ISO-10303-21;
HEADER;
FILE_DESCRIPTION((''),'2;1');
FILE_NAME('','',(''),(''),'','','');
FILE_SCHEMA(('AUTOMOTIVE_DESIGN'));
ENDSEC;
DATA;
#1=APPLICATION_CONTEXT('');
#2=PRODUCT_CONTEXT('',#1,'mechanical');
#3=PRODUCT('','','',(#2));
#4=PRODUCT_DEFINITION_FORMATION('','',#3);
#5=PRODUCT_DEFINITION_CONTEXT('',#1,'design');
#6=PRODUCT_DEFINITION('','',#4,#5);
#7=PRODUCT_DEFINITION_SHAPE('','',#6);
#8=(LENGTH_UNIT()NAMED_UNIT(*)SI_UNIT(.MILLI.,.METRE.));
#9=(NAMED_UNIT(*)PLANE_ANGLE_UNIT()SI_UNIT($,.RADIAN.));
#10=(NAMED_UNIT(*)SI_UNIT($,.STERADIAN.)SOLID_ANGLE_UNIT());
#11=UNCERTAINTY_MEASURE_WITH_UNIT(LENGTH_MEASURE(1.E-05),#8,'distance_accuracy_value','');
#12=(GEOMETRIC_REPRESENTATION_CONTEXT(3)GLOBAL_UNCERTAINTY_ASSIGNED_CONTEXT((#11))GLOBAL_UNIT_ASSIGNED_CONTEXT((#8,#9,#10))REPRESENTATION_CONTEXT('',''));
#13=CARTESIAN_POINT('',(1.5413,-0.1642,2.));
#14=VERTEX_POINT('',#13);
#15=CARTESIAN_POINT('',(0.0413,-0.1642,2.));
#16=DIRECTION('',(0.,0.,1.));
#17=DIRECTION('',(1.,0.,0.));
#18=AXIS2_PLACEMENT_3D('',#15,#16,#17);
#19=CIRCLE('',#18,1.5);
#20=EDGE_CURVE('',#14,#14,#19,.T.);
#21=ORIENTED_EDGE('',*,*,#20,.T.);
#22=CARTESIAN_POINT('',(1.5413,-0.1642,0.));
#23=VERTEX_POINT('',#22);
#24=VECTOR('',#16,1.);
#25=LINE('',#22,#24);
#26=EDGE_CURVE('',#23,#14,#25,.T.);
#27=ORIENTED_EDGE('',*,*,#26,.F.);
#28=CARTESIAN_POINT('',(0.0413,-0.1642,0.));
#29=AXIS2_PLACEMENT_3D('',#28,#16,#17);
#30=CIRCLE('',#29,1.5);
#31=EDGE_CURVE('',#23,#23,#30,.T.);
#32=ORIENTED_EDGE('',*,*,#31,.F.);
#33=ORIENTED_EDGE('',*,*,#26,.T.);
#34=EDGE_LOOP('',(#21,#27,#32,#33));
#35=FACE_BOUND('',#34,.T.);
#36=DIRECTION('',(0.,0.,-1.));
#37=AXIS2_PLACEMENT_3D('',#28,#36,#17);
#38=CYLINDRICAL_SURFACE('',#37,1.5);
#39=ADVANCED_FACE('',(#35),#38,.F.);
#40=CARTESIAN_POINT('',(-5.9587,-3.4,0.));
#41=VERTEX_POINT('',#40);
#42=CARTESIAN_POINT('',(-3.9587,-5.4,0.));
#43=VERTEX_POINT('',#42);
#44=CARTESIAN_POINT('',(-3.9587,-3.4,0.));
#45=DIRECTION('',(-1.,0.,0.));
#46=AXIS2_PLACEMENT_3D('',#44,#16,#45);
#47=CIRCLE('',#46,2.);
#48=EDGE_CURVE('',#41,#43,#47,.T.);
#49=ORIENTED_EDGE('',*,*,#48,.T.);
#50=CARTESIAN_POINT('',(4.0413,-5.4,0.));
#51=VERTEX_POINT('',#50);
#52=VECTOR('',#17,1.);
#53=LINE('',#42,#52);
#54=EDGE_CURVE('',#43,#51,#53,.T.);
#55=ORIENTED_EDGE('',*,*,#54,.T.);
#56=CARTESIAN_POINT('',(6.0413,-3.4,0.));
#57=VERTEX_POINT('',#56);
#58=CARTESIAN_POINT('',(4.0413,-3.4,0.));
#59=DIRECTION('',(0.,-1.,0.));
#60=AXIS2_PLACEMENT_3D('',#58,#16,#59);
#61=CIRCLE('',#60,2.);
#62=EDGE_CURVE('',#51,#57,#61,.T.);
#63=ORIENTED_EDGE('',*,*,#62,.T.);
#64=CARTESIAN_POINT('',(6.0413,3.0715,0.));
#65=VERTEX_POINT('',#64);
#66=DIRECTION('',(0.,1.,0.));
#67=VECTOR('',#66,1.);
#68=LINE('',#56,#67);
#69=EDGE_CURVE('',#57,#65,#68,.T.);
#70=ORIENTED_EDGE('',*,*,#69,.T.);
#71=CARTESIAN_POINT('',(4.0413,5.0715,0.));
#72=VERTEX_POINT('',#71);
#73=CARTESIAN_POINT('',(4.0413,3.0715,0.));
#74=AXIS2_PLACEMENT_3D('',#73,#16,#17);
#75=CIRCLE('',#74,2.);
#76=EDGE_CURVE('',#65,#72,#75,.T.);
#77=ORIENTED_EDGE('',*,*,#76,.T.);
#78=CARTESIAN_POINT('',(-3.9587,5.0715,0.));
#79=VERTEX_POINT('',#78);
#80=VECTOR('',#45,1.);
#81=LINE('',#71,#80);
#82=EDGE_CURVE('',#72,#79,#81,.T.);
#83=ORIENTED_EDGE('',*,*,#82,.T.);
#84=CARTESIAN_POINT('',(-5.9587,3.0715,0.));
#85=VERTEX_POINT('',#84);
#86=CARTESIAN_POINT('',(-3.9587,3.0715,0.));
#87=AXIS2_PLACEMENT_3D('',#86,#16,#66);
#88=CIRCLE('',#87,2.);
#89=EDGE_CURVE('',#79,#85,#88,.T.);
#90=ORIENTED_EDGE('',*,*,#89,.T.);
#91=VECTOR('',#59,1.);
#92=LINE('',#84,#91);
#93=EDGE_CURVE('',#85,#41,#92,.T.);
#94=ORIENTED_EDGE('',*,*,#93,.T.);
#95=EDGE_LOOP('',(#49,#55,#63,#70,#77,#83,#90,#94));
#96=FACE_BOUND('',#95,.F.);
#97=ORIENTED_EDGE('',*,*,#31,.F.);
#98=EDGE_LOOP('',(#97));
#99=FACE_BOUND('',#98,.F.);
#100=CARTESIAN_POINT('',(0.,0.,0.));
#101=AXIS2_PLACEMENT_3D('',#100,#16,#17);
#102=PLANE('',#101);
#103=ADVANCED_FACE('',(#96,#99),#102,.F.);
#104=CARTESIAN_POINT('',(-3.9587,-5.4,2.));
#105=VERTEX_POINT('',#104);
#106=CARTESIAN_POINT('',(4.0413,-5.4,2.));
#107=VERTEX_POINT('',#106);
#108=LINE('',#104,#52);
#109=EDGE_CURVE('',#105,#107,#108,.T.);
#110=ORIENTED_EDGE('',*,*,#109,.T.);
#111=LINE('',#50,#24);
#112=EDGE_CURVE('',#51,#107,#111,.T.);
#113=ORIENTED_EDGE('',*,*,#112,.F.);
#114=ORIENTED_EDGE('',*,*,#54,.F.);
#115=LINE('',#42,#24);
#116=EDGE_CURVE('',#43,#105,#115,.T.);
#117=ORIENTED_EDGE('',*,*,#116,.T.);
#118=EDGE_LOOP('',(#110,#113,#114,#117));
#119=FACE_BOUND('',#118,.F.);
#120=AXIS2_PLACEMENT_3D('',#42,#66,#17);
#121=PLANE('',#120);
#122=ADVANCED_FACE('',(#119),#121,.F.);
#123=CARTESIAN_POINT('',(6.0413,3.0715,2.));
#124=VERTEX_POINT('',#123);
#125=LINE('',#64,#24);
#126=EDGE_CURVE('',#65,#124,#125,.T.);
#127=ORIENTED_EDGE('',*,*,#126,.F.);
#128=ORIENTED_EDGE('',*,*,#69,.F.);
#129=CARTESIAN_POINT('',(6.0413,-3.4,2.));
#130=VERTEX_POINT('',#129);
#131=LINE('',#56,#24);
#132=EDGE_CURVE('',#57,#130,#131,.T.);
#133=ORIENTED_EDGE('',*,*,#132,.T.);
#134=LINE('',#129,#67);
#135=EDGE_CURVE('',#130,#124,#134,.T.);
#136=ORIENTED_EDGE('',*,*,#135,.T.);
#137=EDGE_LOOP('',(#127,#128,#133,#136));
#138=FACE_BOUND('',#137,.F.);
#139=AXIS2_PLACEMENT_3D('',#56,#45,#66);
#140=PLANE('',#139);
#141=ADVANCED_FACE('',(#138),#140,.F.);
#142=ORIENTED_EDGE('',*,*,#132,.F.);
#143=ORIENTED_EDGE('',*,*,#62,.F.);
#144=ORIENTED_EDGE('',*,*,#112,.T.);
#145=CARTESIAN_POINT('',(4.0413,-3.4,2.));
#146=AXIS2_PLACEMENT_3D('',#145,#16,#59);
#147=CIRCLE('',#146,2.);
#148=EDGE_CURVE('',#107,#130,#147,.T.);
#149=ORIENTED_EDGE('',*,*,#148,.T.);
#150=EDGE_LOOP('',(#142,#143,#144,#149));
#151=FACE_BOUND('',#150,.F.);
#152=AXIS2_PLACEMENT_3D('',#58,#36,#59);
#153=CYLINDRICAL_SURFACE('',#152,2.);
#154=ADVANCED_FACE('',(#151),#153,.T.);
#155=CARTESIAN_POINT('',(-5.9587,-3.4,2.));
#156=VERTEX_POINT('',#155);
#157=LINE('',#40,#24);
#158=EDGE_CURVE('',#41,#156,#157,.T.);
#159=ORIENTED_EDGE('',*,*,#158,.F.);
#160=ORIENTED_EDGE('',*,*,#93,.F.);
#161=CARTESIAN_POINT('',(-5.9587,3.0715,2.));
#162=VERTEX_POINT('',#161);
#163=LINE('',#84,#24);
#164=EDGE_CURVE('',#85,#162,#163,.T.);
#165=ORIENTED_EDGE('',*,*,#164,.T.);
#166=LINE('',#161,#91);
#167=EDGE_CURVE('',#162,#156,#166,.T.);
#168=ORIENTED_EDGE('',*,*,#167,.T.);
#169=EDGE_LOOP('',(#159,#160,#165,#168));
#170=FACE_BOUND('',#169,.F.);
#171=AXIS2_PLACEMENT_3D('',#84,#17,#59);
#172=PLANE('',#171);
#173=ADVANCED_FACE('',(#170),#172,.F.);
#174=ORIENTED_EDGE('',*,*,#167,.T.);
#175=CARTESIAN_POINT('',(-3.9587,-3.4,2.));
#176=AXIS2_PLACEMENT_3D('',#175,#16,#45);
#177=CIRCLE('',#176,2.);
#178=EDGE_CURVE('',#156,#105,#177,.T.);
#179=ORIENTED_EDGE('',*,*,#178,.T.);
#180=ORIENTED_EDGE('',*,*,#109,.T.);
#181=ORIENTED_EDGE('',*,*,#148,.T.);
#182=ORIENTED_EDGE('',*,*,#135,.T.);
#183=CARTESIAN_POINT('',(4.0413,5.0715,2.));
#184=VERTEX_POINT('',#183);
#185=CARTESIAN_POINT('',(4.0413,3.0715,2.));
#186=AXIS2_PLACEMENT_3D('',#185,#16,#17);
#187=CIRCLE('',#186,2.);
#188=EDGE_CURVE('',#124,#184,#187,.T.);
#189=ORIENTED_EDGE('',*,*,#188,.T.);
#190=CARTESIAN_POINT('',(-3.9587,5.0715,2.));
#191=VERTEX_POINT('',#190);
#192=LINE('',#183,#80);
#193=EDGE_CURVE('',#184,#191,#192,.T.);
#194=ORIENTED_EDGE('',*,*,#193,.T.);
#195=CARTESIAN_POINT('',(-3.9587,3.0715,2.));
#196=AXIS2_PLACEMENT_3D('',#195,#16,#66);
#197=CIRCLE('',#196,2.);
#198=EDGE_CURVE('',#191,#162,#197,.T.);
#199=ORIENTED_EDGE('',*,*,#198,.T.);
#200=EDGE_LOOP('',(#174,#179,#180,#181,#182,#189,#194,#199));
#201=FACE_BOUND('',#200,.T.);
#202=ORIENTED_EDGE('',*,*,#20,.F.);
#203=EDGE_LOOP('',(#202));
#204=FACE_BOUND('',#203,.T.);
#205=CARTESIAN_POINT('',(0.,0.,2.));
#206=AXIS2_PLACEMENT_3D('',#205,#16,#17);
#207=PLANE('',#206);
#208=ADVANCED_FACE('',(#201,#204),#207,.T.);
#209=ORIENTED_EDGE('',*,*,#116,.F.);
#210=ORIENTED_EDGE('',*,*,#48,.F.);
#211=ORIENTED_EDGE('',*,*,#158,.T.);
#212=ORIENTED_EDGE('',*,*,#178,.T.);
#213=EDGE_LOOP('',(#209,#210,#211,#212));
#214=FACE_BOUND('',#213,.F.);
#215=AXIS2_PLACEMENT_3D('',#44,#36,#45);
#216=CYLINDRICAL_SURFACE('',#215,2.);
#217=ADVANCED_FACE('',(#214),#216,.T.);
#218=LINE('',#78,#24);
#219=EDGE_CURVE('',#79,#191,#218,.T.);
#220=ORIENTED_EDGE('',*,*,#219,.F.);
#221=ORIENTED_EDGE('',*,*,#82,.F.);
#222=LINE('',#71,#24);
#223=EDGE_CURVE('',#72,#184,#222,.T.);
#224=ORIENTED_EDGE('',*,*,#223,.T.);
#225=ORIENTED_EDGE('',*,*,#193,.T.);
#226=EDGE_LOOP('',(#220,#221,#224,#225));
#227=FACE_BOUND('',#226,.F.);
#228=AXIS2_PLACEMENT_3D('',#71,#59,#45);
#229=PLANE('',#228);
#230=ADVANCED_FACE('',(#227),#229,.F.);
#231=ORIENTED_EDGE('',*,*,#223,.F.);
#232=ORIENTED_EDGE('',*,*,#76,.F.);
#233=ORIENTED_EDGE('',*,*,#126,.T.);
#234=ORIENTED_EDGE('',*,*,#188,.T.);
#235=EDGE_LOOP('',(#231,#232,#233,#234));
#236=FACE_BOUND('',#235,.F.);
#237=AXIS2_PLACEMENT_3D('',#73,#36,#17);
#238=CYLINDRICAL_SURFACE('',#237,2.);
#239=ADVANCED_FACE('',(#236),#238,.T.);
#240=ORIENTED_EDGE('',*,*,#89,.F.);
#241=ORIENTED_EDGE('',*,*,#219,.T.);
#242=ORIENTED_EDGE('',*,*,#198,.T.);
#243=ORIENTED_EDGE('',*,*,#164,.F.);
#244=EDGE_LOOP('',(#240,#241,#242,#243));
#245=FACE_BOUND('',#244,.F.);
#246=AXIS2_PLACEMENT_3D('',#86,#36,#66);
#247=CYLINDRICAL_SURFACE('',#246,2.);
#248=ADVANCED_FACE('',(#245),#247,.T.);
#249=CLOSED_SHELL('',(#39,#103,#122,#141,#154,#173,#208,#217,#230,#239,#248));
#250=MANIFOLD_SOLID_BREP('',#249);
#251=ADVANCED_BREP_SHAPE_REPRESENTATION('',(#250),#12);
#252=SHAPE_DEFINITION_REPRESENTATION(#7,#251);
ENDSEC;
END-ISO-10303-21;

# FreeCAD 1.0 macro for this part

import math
import FreeCAD as App
import Part
import Sketcher

V = App.Vector

doc = App.newDocument("Part")
body = doc.addObject("PartDesign::Body", "Body")

# Sketch on XY plane
sketch1 = doc.addObject("Sketcher::SketchObject", "Sketch")
body.addObject(sketch1)
sketch1.AttachmentSupport = (doc.XY_Plane, [""])
sketch1.MapMode = "FlatFace"
sketch1.addGeometry([
    Part.ArcOfCircle(Part.Circle(V(-4, -3.4, 0), V(0, 0, 1), 2), math.radians(180), math.radians(270)),  # 0
    Part.LineSegment(V(-4, -5.4, 0), V(4, -5.4, 0)),  # 1
    Part.ArcOfCircle(Part.Circle(V(4, -3.4, 0), V(0, 0, 1), 2), math.radians(-90), math.radians(0)),  # 2
    Part.LineSegment(V(6, -3.4, 0), V(6, 3.1, 0)),  # 3
    Part.ArcOfCircle(Part.Circle(V(4, 3.1, 0), V(0, 0, 1), 2), math.radians(0), math.radians(90)),  # 4
    Part.LineSegment(V(4, 5.1, 0), V(-4, 5.1, 0)),  # 5
    Part.ArcOfCircle(Part.Circle(V(-4, 3.1, 0), V(0, 0, 1), 2), math.radians(90), math.radians(180)),  # 6
    Part.LineSegment(V(-6, 3.1, 0), V(-6, -3.4, 0)),  # 7
    Part.Circle(V(0, -0.2, 0), V(0, 0, 1), 1.5),  # 8
], False)
sketch1.addConstraint([
    Sketcher.Constraint("Tangent", 0, 2, 1, 1),
    Sketcher.Constraint("Tangent", 1, 2, 2, 1),
    Sketcher.Constraint("Tangent", 2, 2, 3, 1),
    Sketcher.Constraint("Tangent", 3, 2, 4, 1),
    Sketcher.Constraint("Tangent", 4, 2, 5, 1),
    Sketcher.Constraint("Tangent", 5, 2, 6, 1),
    Sketcher.Constraint("Tangent", 6, 2, 7, 1),
    Sketcher.Constraint("Tangent", 7, 2, 0, 1),
    Sketcher.Constraint("Horizontal", 1),
    Sketcher.Constraint("Vertical", 3),
    Sketcher.Constraint("Horizontal", 5),
    Sketcher.Constraint("Vertical", 7),
    Sketcher.Constraint("Equal", 0, 2),
    Sketcher.Constraint("Equal", 2, 4),
    Sketcher.Constraint("Equal", 4, 6),
    Sketcher.Constraint("Radius", 0, 2.0),
    Sketcher.Constraint("Diameter", 8, 3.0),
    Sketcher.Constraint("DistanceX", 8, 3, 2, 2, 6.0),
    Sketcher.Constraint("DistanceX", 6, 2, 8, 3, 6.0),
    Sketcher.Constraint("DistanceY", 0, 3, -1, 1, 3.4),
    Sketcher.Constraint("DistanceY", 0, 2, 8, 3, 5.2358),
    Sketcher.Constraint("DistanceY", 8, 3, 4, 2, 5.2357),
    Sketcher.Constraint("DistanceX", 0, 3, -1, 1, 3.9587),
])
pad1 = doc.addObject("PartDesign::Pad", "Pad")
body.addObject(pad1)
pad1.Profile = sketch1
pad1.Length = 2

doc.recompute()
